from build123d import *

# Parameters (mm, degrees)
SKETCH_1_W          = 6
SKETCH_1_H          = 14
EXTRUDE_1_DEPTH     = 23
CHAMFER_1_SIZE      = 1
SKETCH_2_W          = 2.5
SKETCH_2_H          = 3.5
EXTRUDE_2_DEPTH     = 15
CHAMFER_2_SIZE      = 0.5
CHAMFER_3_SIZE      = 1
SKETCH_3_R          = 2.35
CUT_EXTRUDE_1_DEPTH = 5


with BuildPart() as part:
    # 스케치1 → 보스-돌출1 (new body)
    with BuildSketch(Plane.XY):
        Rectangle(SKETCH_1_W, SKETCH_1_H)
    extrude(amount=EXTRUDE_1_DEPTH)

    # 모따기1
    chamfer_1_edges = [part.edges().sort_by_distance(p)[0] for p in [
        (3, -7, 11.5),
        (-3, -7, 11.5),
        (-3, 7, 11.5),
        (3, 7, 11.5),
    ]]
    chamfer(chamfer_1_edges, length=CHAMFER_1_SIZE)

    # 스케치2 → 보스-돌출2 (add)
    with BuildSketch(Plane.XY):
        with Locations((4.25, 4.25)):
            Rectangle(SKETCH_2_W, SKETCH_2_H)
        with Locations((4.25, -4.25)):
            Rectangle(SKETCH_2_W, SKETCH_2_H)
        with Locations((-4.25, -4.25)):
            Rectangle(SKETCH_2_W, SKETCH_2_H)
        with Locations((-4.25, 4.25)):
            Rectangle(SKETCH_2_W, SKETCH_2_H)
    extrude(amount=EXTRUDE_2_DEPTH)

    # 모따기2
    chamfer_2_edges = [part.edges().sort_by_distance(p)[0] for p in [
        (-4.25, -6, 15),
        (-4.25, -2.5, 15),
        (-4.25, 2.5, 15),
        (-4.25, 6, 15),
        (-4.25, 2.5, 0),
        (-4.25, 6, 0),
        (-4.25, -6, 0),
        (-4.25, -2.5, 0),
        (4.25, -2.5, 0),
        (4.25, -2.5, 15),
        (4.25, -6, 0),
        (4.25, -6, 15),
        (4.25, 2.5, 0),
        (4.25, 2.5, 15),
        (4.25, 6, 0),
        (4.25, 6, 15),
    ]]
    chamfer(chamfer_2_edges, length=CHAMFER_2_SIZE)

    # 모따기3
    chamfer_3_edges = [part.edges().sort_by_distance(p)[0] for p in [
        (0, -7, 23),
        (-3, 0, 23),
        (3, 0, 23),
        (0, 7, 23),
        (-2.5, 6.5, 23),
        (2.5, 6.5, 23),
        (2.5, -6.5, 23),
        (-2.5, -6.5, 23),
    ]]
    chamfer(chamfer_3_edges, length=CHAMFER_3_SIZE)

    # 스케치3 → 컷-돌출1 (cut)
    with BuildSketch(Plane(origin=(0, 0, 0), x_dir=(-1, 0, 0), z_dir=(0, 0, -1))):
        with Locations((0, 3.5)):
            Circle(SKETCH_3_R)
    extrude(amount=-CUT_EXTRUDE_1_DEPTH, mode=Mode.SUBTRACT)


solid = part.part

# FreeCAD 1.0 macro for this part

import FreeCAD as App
import Part
import Sketcher
from FreeCAD import Vector
Q = App.Units.Quantity


def edges_at(feature, points):
    """Names of the edges that pass closest to the given points."""
    edges = feature.Shape.Edges
    near = lambda p: min(range(len(edges)), key=lambda i: edges[i].distToShape(Part.Vertex(*p))[0])
    return sorted({f"Edge{near(p) + 1}" for p in points})


def add_polygon(sketch, points):
    """Adds a closed chain of lines whose ends are joined by coincident constraints."""
    first, n = sketch.GeometryCount, len(points)
    for a, b in zip(points, points[1:] + points[:1]):
        sketch.addGeometry(Part.LineSegment(App.Vector(*a, 0), App.Vector(*b, 0)), False)
    for i in range(n):
        sketch.addConstraint(Sketcher.Constraint("Coincident", first + i, 2, first + (i + 1) % n, 1))

doc = App.newDocument("Part")
body = doc.addObject("PartDesign::Body", "Body")

# Sketch on XY plane
sketch1 = body.newObject("Sketcher::SketchObject", "Sketch")
sketch1.AttachmentSupport = (doc.getObject("XY_Plane"), [""])
sketch1.MapMode = "FlatFace"
add_polygon(sketch1, [(-3, 7), (-3, -7), (3, -7), (3, 7)])  # lines 0-3
sketch1.addConstraint(Sketcher.Constraint("Vertical", 0))
sketch1.addConstraint(Sketcher.Constraint("Horizontal", 1))
sketch1.addConstraint(Sketcher.Constraint("Vertical", 2))
sketch1.addConstraint(Sketcher.Constraint("Horizontal", 3))
sketch1.addConstraint(Sketcher.Constraint("Symmetric", 0, 2, 2, 2, -1, 1))
sketch1.addConstraint(Sketcher.Constraint("DistanceX", 1, 1, 1, 2, Q("6 mm")))
sketch1.addConstraint(Sketcher.Constraint("DistanceY", 0, 2, 0, 1, Q("14 mm")))
pad1 = body.newObject("PartDesign::Pad", "Pad")
pad1.Profile = sketch1
pad1.Length = 23
doc.recompute()

chamfer = body.newObject("PartDesign::Chamfer", "Chamfer")
chamfer.Base = (pad1, edges_at(pad1, [
    (3, -7, 11.5),
    (-3, -7, 11.5),
    (-3, 7, 11.5),
    (3, 7, 11.5),
]))
chamfer.Size = 1

# Sketch on XY plane
sketch2 = body.newObject("Sketcher::SketchObject", "Sketch001")
sketch2.AttachmentSupport = (doc.getObject("XY_Plane"), [""])
sketch2.MapMode = "FlatFace"
add_polygon(sketch2, [(3, 6), (3, 2.5), (5.5, 2.5), (5.5, 6)])  # lines 0-3
add_polygon(sketch2, [(3, -2.5), (3, -6), (5.5, -6), (5.5, -2.5)])  # lines 4-7
add_polygon(sketch2, [(-5.5, -2.5), (-5.5, -6), (-3, -6), (-3, -2.5)])  # lines 8-11
add_polygon(sketch2, [(-5.5, 6), (-5.5, 2.5), (-3, 2.5), (-3, 6)])  # lines 12-15
sketch2.addConstraint(Sketcher.Constraint("Vertical", 0))
sketch2.addConstraint(Sketcher.Constraint("Horizontal", 1))
sketch2.addConstraint(Sketcher.Constraint("Vertical", 2))
sketch2.addConstraint(Sketcher.Constraint("Horizontal", 3))
sketch2.addConstraint(Sketcher.Constraint("Vertical", 4))
sketch2.addConstraint(Sketcher.Constraint("Horizontal", 5))
sketch2.addConstraint(Sketcher.Constraint("Vertical", 6))
sketch2.addConstraint(Sketcher.Constraint("Horizontal", 7))
sketch2.addConstraint(Sketcher.Constraint("Vertical", 8))
sketch2.addConstraint(Sketcher.Constraint("Horizontal", 9))
sketch2.addConstraint(Sketcher.Constraint("Vertical", 10))
sketch2.addConstraint(Sketcher.Constraint("Horizontal", 11))
sketch2.addConstraint(Sketcher.Constraint("Vertical", 12))
sketch2.addConstraint(Sketcher.Constraint("Horizontal", 13))
sketch2.addConstraint(Sketcher.Constraint("Vertical", 14))
sketch2.addConstraint(Sketcher.Constraint("Horizontal", 15))
sketch2.addConstraint(Sketcher.Constraint("Symmetric", 2, 2, 8, 2, -1, 1))
sketch2.addConstraint(Sketcher.Constraint("Symmetric", 0, 2, 10, 2, -1, 1))
sketch2.addConstraint(Sketcher.Constraint("Symmetric", 6, 2, 12, 2, -1, 1))
sketch2.addConstraint(Sketcher.Constraint("Symmetric", 4, 2, 14, 2, -1, 1))
sketch2.addConstraint(Sketcher.Constraint("Symmetric", 5, 2, 8, 2, -2))
sketch2.addConstraint(Sketcher.Constraint("Symmetric", 7, 2, 10, 2, -2))
sketch2.addConstraint(Sketcher.Constraint("DistanceX", 1, 1, 1, 2, Q("2.5 mm")))
sketch2.addConstraint(Sketcher.Constraint("DistanceY", 0, 2, 0, 1, Q("3.5 mm")))
sketch2.addConstraint(Sketcher.Constraint("DistanceX", -1, 1, 0, 2, Q("3 mm")))
sketch2.addConstraint(Sketcher.Constraint("DistanceY", -1, 1, 2, 2, Q("6 mm")))
pad2 = body.newObject("PartDesign::Pad", "Pad001")
pad2.Profile = sketch2
pad2.Length = 15
doc.recompute()

chamfer2 = body.newObject("PartDesign::Chamfer", "Chamfer001")
chamfer2.Base = (pad2, edges_at(pad2, [
    (-4.25, -6, 15),
    (-4.25, -2.5, 15),
    (-4.25, 2.5, 15),
    (-4.25, 6, 15),
    (-4.25, 2.5, 0),
    (-4.25, 6, 0),
    (-4.25, -6, 0),
    (-4.25, -2.5, 0),
    (4.25, -2.5, 0),
    (4.25, -2.5, 15),
    (4.25, -6, 0),
    (4.25, -6, 15),
    (4.25, 2.5, 0),
    (4.25, 2.5, 15),
    (4.25, 6, 0),
    (4.25, 6, 15),
]))
chamfer2.Size = 0.5
doc.recompute()

chamfer3 = body.newObject("PartDesign::Chamfer", "Chamfer002")
chamfer3.Base = (chamfer2, edges_at(chamfer2, [
    (0, -7, 23),
    (-3, 0, 23),
    (3, 0, 23),
    (0, 7, 23),
    (-2.5, 6.5, 23),
    (2.5, 6.5, 23),
    (2.5, -6.5, 23),
    (-2.5, -6.5, 23),
]))
chamfer3.Size = 1

# Sketch on XY plane
sketch3 = body.newObject("Sketcher::SketchObject", "Sketch002")
sketch3.AttachmentSupport = (doc.getObject("XY_Plane"), [""])
sketch3.MapMode = "FlatFace"
sketch3.addGeometry(Part.Circle(Vector(0, 3.5, 0), Vector(0, 0, 1), 2.4), False)
sketch3.addConstraint(Sketcher.Constraint("PointOnObject", 0, 3, -2))
sketch3.addConstraint(Sketcher.Constraint("Diameter", 0, Q("4.7 mm")))
sketch3.addConstraint(Sketcher.Constraint("DistanceY", -1, 1, 0, 3, Q("3.5 mm")))
pocket1 = body.newObject("PartDesign::Pocket", "Pocket")
pocket1.Profile = sketch3
pocket1.Length = 5
pocket1.Reversed = True

doc.recompute()
